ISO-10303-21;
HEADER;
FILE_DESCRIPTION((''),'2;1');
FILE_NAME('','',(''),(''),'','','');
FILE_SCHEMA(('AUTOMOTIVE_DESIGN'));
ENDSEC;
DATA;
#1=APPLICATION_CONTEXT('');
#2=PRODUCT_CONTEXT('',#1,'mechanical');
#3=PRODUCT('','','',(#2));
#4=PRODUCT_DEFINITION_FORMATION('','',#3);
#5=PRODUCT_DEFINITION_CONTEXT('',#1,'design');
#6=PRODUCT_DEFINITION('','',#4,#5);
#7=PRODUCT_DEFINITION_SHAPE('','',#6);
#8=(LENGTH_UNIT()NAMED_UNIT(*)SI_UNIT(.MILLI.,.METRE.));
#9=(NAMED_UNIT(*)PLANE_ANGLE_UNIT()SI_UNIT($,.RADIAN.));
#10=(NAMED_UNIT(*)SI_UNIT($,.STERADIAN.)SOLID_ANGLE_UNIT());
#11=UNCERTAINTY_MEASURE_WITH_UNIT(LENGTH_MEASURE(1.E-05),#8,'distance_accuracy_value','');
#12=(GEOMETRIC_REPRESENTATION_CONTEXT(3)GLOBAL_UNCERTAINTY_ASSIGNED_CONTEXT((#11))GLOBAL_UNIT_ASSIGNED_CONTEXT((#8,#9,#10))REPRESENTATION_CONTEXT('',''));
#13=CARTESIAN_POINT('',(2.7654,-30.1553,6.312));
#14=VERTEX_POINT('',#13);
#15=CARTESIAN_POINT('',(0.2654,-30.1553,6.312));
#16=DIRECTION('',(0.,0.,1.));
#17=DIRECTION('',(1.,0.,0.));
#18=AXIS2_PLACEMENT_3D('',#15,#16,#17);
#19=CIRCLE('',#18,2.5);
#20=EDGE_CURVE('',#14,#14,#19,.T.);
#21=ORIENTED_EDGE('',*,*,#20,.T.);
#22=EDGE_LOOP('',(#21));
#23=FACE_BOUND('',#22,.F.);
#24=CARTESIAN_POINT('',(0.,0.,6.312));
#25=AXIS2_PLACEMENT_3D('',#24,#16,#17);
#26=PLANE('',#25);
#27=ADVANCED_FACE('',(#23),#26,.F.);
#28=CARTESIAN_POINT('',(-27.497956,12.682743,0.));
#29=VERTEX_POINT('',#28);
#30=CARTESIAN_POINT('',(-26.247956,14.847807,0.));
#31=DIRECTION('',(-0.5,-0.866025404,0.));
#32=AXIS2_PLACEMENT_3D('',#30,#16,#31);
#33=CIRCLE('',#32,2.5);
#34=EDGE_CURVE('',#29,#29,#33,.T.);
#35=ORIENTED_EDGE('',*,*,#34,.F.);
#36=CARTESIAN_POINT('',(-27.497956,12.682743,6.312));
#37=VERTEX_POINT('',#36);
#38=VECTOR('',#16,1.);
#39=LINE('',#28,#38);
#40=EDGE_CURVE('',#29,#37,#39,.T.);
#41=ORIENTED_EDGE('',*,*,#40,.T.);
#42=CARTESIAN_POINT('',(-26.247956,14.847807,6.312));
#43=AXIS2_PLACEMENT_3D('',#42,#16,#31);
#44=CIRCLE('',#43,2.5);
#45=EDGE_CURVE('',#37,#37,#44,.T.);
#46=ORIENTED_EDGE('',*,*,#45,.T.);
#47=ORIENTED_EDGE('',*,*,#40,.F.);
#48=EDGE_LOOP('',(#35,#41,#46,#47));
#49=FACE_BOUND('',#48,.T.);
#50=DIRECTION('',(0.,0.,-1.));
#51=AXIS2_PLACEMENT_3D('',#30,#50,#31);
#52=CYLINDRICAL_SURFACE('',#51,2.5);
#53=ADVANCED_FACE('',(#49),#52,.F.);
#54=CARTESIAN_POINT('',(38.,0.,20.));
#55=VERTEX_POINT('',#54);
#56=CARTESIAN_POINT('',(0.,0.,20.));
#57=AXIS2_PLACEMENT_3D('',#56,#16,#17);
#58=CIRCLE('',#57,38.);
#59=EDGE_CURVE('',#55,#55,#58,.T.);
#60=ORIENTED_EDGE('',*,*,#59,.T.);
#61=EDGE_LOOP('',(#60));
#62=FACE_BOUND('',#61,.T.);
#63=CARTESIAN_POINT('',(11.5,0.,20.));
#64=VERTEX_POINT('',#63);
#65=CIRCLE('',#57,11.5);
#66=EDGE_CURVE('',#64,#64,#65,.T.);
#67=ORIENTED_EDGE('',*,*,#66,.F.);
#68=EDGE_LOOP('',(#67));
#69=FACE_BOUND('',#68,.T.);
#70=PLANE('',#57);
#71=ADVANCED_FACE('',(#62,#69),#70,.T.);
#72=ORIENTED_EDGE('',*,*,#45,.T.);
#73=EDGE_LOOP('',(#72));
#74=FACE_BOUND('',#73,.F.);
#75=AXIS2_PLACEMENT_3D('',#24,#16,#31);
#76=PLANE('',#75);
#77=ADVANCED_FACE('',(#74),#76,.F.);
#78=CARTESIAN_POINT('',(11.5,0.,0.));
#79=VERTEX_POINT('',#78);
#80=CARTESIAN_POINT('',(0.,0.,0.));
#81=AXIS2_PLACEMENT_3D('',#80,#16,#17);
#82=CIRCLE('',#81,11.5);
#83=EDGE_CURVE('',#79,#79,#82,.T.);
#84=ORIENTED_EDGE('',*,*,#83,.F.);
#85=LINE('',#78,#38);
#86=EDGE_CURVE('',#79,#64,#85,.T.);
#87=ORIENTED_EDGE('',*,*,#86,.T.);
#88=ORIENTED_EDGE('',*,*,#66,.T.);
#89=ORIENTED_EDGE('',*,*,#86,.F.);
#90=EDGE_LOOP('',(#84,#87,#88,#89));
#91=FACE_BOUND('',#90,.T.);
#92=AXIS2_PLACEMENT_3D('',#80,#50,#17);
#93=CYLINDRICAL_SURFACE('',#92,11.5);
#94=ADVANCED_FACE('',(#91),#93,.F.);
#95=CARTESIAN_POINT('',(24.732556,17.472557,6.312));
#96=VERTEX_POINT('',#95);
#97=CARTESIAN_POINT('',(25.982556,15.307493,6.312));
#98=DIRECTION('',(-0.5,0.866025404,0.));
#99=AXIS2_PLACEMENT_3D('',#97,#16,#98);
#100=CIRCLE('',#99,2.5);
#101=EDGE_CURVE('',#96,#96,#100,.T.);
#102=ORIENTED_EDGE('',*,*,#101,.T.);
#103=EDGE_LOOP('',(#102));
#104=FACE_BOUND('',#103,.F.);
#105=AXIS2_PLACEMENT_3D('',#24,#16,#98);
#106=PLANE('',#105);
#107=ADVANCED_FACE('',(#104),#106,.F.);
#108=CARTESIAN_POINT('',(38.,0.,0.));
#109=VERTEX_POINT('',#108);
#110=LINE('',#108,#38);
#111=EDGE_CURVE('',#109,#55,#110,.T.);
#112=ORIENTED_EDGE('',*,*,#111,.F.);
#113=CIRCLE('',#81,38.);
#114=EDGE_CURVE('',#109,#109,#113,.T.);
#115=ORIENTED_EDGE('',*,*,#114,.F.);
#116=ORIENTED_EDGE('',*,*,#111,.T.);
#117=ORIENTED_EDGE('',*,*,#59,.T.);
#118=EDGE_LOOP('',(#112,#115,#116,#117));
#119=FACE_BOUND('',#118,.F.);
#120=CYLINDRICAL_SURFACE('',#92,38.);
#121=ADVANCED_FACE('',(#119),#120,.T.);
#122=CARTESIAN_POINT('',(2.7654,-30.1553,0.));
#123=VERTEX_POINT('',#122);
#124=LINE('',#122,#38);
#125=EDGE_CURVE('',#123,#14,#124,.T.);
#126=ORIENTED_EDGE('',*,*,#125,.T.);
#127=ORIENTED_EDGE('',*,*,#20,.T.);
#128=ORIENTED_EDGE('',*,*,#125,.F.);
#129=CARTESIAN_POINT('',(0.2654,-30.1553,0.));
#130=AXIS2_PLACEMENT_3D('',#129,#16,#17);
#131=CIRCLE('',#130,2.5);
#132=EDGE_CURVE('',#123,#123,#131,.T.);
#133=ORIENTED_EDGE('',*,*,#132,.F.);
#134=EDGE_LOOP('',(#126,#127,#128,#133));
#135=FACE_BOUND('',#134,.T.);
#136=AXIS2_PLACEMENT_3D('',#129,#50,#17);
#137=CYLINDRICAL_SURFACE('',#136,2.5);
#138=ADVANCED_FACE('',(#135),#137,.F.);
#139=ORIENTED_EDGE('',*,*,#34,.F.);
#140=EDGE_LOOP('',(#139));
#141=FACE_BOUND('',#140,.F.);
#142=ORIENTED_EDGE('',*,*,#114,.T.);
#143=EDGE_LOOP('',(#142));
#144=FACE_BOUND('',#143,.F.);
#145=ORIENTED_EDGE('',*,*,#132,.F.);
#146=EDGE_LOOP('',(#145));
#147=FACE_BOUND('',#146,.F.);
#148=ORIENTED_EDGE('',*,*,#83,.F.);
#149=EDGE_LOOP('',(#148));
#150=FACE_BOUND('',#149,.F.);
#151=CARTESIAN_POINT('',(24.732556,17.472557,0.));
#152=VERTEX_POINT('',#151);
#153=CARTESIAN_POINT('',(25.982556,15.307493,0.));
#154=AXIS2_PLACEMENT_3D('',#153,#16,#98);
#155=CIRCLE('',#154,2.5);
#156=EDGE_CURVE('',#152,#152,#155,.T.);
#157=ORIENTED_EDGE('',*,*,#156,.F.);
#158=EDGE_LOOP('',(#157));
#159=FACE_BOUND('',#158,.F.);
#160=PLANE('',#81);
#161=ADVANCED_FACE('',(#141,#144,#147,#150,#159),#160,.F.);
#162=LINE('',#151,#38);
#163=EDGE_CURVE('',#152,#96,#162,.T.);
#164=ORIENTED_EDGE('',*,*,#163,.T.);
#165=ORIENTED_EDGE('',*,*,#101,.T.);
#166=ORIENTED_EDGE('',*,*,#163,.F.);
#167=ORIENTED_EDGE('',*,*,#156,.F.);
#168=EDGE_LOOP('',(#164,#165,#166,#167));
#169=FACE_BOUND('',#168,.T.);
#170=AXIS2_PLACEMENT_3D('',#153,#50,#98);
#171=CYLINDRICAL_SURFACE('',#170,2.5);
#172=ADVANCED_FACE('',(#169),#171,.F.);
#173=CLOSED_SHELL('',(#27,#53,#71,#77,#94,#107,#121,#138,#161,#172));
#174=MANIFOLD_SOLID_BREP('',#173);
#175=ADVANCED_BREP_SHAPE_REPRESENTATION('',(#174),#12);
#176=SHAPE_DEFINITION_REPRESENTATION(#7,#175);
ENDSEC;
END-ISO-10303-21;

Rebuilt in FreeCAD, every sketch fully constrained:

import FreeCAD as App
import Part
import Sketcher
from FreeCAD import Vector

doc = App.newDocument("Part")
params = doc.addObject("Spreadsheet::Sheet", "Params")
for row, (alias, value) in enumerate([
    ("sketch1_diameter", "45 mm"),
    ("sketch1_diameter2", "23 mm"),
    ("pad1_length", "20 mm"),
    ("sketch2_diameter", "76 mm"),
    ("sketch2_diameter2", "23 mm"),
    ("pad2_length", "20 mm"),
    ("sketch3_diameter", "5 mm"),
    ("pocket1_length", "6.312 mm"),
], start=1):
    params.set(f"A{row}", alias)
    params.set(f"B{row}", "=" + value)
    params.setAlias(f"B{row}", alias)

body = doc.addObject("PartDesign::Body", "Body")

# Sketch on XY plane
sketch1 = doc.addObject("Sketcher::SketchObject", "Sketch")
body.addObject(sketch1)
sketch1.AttachmentSupport = (doc.XY_Plane, [""])
sketch1.MapMode = "FlatFace"
sketch1.addGeometry([
    Part.Circle(Vector(0, 0, 0), Vector(0, 0, 1), 22),
    Part.Circle(Vector(0, 0, 0), Vector(0, 0, 1), 12),
], False)
sketch1.addConstraint([
    Sketcher.Constraint("Coincident", 0, 3, -1, 1),
    Sketcher.Constraint("Coincident", 1, 3, -1, 1),
    Sketcher.Constraint("Diameter", 0, 45.0),
    Sketcher.Constraint("Diameter", 1, 23.0),
])
sketch1.setExpression("Constraints[2]", "Params.sketch1_diameter")
sketch1.setExpression("Constraints[3]", "Params.sketch1_diameter2")
pad1 = doc.addObject("PartDesign::Pad", "Pad")
body.addObject(pad1)
pad1.Profile = sketch1
pad1.setExpression("Length", "Params.pad1_length")

# Sketch on XY plane
sketch2 = doc.addObject("Sketcher::SketchObject", "Sketch001")
body.addObject(sketch2)
sketch2.AttachmentSupport = (doc.XY_Plane, [""])
sketch2.MapMode = "FlatFace"
sketch2.addGeometry([
    Part.Circle(Vector(0, 0, 0), Vector(0, 0, 1), 38),
    Part.Circle(Vector(0, 0, 0), Vector(0, 0, 1), 12),
], False)
sketch2.addConstraint([
    Sketcher.Constraint("Coincident", 0, 3, -1, 1),
    Sketcher.Constraint("Coincident", 1, 3, -1, 1),
    Sketcher.Constraint("Diameter", 0, 76.0),
    Sketcher.Constraint("Diameter", 1, 23.0),
])
sketch2.setExpression("Constraints[2]", "Params.sketch2_diameter")
sketch2.setExpression("Constraints[3]", "Params.sketch2_diameter2")
pad2 = doc.addObject("PartDesign::Pad", "Pad001")
body.addObject(pad2)
pad2.Profile = sketch2
pad2.setExpression("Length", "Params.pad2_length")

# Sketch on XY plane
sketch3 = doc.addObject("Sketcher::SketchObject", "Sketch002")
body.addObject(sketch3)
sketch3.AttachmentSupport = (doc.XY_Plane, [""])
sketch3.MapMode = "FlatFace"
sketch3.addGeometry(Part.Circle(Vector(0.3, -30.2, 0), Vector(0, 0, 1), 2.5), False)
sketch3.addConstraint([
    Sketcher.Constraint("Diameter", 0, 5.0),
    Sketcher.Constraint("DistanceX", -1, 1, 0, 3, 0.2654),
    Sketcher.Constraint("DistanceY", 0, 3, -1, 1, 30.1553),
])
sketch3.setExpression("Constraints[0]", "Params.sketch3_diameter")
pocket1 = doc.addObject("PartDesign::Pocket", "Pocket")
body.addObject(pocket1)
pocket1.Profile = sketch3
pocket1.setExpression("Length", "Params.pocket1_length")
pocket1.Reversed = True
doc.recompute()

polarpattern = doc.addObject("PartDesign::PolarPattern", "PolarPattern")
body.addObject(polarpattern)
polarpattern.Originals = [pocket1]
polarpattern.Axis = (doc.Z_Axis, [""])
polarpattern.Angle = 360
polarpattern.Occurrences = 3
body.Tip = polarpattern

doc.recompute()
